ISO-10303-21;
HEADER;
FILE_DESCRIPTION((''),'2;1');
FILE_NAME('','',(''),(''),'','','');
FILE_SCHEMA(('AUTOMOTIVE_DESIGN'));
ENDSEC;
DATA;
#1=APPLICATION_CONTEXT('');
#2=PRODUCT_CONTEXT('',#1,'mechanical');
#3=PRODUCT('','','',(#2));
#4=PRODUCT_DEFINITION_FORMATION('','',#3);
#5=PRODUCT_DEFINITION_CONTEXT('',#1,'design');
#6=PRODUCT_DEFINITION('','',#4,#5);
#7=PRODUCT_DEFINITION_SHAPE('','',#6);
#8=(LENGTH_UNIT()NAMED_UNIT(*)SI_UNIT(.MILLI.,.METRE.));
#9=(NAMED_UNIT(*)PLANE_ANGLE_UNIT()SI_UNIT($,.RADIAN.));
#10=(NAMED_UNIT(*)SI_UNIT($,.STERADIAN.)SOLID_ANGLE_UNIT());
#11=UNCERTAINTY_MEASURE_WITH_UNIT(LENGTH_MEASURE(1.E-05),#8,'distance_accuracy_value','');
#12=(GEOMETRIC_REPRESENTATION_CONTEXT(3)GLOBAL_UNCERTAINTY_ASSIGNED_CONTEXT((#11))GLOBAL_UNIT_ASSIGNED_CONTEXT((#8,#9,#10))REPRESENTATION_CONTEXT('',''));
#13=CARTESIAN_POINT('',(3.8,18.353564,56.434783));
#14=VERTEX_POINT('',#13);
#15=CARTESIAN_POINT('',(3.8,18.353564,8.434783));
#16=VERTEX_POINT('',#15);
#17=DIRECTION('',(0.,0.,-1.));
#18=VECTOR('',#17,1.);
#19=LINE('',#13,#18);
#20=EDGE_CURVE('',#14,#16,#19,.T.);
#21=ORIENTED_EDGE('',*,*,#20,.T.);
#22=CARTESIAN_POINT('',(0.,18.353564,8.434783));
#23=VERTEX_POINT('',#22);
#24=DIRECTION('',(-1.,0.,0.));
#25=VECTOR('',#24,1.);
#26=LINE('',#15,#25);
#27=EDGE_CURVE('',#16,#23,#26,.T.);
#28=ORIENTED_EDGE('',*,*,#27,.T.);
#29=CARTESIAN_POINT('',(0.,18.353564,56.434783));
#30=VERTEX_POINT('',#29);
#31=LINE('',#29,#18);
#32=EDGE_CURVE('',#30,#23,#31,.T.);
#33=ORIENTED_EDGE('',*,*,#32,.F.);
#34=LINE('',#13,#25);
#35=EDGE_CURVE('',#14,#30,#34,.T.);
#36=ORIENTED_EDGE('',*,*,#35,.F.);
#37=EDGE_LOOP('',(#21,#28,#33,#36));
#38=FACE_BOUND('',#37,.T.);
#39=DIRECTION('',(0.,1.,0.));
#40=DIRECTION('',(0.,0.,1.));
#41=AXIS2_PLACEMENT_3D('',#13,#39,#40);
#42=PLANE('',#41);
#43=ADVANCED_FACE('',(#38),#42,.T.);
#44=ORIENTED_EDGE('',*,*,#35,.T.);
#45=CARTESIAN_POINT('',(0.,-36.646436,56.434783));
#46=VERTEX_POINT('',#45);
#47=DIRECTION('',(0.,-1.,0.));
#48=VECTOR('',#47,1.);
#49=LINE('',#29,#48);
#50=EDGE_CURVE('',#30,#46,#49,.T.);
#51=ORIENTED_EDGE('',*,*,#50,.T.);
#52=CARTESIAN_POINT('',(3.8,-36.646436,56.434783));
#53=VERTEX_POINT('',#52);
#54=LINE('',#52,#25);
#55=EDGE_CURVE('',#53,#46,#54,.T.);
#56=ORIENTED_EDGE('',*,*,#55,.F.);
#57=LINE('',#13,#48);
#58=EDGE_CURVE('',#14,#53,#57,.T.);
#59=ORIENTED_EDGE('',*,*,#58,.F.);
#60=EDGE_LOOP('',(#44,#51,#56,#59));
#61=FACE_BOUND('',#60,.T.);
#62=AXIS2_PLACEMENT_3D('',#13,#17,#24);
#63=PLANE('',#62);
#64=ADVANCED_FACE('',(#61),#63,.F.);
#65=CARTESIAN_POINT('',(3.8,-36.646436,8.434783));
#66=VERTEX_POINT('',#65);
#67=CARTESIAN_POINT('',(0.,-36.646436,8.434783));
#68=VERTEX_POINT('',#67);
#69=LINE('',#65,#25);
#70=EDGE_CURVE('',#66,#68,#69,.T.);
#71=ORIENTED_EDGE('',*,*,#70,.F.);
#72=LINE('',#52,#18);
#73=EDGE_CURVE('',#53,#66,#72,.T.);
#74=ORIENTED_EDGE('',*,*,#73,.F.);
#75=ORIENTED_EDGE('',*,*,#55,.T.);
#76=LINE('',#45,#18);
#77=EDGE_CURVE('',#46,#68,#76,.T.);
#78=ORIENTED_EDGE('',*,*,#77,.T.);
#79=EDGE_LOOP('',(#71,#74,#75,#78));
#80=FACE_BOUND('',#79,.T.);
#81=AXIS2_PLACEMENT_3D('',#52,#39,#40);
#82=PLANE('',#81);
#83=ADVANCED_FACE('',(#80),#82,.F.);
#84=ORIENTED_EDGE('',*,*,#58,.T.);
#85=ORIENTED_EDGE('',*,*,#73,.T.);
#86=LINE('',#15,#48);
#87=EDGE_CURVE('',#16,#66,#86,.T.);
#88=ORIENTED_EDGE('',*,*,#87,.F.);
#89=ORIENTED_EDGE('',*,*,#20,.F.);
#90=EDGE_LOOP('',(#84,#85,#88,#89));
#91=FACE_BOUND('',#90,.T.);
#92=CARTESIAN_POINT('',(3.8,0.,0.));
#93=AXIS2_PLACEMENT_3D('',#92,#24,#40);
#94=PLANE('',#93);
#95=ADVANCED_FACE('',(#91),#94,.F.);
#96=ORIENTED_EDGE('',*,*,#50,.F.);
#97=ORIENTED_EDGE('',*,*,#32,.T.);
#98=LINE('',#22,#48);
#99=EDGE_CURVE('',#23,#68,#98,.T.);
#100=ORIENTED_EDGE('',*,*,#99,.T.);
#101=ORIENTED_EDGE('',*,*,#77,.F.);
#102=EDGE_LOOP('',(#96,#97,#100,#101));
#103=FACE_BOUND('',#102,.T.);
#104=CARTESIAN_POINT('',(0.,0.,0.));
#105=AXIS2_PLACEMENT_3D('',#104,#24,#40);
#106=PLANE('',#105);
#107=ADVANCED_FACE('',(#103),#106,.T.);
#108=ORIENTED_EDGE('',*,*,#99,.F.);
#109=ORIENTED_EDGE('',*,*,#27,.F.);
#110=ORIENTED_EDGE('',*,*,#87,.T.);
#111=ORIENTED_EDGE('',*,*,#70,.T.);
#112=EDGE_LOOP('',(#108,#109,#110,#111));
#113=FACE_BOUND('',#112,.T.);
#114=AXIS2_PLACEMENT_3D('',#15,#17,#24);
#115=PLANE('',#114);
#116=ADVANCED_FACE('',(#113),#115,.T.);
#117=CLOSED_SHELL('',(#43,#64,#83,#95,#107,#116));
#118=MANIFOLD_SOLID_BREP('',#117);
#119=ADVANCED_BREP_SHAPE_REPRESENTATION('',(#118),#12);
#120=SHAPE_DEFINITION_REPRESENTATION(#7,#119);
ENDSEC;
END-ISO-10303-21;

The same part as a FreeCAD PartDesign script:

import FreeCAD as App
import Part
import Sketcher
from FreeCAD import Vector


def add_polygon(sketch, points):
    """Adds a closed chain of lines whose ends are joined by coincident constraints."""
    first, n = sketch.GeometryCount, len(points)
    for a, b in zip(points, points[1:] + points[:1]):
        sketch.addGeometry(Part.LineSegment(App.Vector(*a, 0), App.Vector(*b, 0)), False)
    for i in range(n):
        sketch.addConstraint(Sketcher.Constraint("Coincident", first + i, 2, first + (i + 1) % n, 1))

doc = App.newDocument("Part")
body = doc.addObject("PartDesign::Body", "Body")

# Sketch on YZ plane
sketch1 = body.newObject("Sketcher::SketchObject", "Sketch")
sketch1.AttachmentSupport = (doc.getObject("YZ_Plane"), [""])
sketch1.MapMode = "FlatFace"
add_polygon(sketch1, [(18, 56), (-37, 56), (-37, 8), (18, 8)])  # lines 0-3
sketch1.addConstraint([
    Sketcher.Constraint("Horizontal", 0),
    Sketcher.Constraint("Vertical", 1),
    Sketcher.Constraint("Horizontal", 2),
    Sketcher.Constraint("Vertical", 3),
    Sketcher.Constraint("DistanceX", 0, 2, 0, 1, 55.0),
    Sketcher.Constraint("DistanceY", 1, 2, 1, 1, 48.0),
    Sketcher.Constraint("DistanceX", 0, 2, -1, 1, 36.646436),
    Sketcher.Constraint("DistanceY", -1, 1, 0, 2, 56.434783),
])
pad1 = body.newObject("PartDesign::Pad", "Pad")
pad1.Profile = sketch1
pad1.Length = 3.8

doc.recompute()
